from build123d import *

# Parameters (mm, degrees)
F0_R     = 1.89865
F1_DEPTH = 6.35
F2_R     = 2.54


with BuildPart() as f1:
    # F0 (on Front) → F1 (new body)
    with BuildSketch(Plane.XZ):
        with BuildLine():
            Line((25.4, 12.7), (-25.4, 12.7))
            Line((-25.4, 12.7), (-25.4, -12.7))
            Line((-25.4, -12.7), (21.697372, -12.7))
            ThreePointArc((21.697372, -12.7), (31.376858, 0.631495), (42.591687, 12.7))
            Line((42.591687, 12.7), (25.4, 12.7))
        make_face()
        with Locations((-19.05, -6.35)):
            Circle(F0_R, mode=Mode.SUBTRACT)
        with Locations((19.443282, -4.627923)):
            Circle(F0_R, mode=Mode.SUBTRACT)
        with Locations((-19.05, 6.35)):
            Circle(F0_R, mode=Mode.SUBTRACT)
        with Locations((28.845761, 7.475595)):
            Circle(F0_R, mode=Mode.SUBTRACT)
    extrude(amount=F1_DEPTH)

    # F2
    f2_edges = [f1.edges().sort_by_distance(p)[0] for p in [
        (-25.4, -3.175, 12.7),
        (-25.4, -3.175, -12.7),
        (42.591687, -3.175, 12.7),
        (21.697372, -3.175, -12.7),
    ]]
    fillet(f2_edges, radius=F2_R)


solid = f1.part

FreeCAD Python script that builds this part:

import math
import FreeCAD as App
import Part
import Sketcher
from FreeCAD import Vector
Q = App.Units.Quantity


def edges_at(feature, points):
    """Names of the edges that pass closest to the given points."""
    edges = feature.Shape.Edges
    near = lambda p: min(range(len(edges)), key=lambda i: edges[i].distToShape(Part.Vertex(*p))[0])
    return sorted({f"Edge{near(p) + 1}" for p in points})

doc = App.newDocument("Part")
body = doc.addObject("PartDesign::Body", "Body")

# Sketch on XZ plane
sketch1 = body.newObject("Sketcher::SketchObject", "Sketch")
sketch1.AttachmentSupport = (doc.getObject("XZ_Plane"), [""])
sketch1.MapMode = "FlatFace"
sketch1.addGeometry([
    Part.LineSegment(Vector(-25.4, 12.7, 0), Vector(-25.4, -12.7, 0)),  # 0
    Part.LineSegment(Vector(-25.4, -12.7, 0), Vector(21.7, -12.7, 0)),  # 1
    Part.ArcOfCircle(Part.Circle(Vector(136.8, -86.1, 0), Vector(0, 0, 1), 136.5), math.radians(133.64), math.radians(147.48)),  # 2
    Part.LineSegment(Vector(42.6, 12.7, 0), Vector(-25.4, 12.7, 0)),  # 3
    Part.Circle(Vector(-19.1, -6.3, 0), Vector(0, 0, 1), 1.9),  # 4
    Part.Circle(Vector(19.4, -4.6, 0), Vector(0, 0, 1), 1.9),  # 5
    Part.Circle(Vector(-19.1, 6.3, 0), Vector(0, 0, 1), 1.9),  # 6
    Part.Circle(Vector(28.8, 7.5, 0), Vector(0, 0, 1), 1.9),  # 7
], False)
sketch1.addConstraint([
    Sketcher.Constraint("Coincident", 0, 2, 1, 1),
    Sketcher.Constraint("Coincident", 1, 2, 2, 2),
    Sketcher.Constraint("Coincident", 2, 1, 3, 1),
    Sketcher.Constraint("Coincident", 3, 2, 0, 1),
    Sketcher.Constraint("Vertical", 0),
    Sketcher.Constraint("Horizontal", 1),
    Sketcher.Constraint("Horizontal", 3),
    Sketcher.Constraint("Equal", 4, 5),
    Sketcher.Constraint("Equal", 5, 6),
    Sketcher.Constraint("Equal", 6, 7),
    Sketcher.Constraint("Symmetric", 4, 3, 6, 3, -1),
    Sketcher.Constraint("DistanceY", 0, 2, 0, 1, Q("1 in")),
    Sketcher.Constraint("DistanceX", 0, 2, -1, 1, Q("1 in")),
    Sketcher.Constraint("Diameter", 4, Q("0.1495 in")),
    Sketcher.Constraint("DistanceY", 0, 2, -1, 1, Q("0.5 in")),
    Sketcher.Constraint("DistanceY", 4, 3, 6, 3, Q("0.5 in")),
    Sketcher.Constraint("DistanceX", 4, 3, -1, 1, Q("0.75 in")),
    Sketcher.Constraint("Radius", 2, 136.524982),
    Sketcher.Constraint("DistanceY", 2, 3, -1, 1, 86.100702),
    Sketcher.Constraint("DistanceX", 1, 1, 1, 2, 47.097372),
    Sketcher.Constraint("DistanceX", -1, 1, 5, 3, 19.443282),
    Sketcher.Constraint("DistanceX", -1, 1, 7, 3, 28.845761),
    Sketcher.Constraint("DistanceY", 2, 3, 5, 3, 81.472779),
    Sketcher.Constraint("DistanceY", 5, 3, 7, 3, 12.103518),
])
pad1 = body.newObject("PartDesign::Pad", "Pad")
pad1.Profile = sketch1
pad1.Length = Q("0.25 in")
doc.recompute()

fillet = body.newObject("PartDesign::Fillet", "Fillet")
fillet.Base = (pad1, edges_at(pad1, [
    (-25.4, -3.175, 12.7),
    (-25.4, -3.175, -12.7),
    (42.592, -3.175, 12.7),
    (21.697, -3.175, -12.7),
]))
fillet.Radius = Q("0.1 in")

doc.recompute()
